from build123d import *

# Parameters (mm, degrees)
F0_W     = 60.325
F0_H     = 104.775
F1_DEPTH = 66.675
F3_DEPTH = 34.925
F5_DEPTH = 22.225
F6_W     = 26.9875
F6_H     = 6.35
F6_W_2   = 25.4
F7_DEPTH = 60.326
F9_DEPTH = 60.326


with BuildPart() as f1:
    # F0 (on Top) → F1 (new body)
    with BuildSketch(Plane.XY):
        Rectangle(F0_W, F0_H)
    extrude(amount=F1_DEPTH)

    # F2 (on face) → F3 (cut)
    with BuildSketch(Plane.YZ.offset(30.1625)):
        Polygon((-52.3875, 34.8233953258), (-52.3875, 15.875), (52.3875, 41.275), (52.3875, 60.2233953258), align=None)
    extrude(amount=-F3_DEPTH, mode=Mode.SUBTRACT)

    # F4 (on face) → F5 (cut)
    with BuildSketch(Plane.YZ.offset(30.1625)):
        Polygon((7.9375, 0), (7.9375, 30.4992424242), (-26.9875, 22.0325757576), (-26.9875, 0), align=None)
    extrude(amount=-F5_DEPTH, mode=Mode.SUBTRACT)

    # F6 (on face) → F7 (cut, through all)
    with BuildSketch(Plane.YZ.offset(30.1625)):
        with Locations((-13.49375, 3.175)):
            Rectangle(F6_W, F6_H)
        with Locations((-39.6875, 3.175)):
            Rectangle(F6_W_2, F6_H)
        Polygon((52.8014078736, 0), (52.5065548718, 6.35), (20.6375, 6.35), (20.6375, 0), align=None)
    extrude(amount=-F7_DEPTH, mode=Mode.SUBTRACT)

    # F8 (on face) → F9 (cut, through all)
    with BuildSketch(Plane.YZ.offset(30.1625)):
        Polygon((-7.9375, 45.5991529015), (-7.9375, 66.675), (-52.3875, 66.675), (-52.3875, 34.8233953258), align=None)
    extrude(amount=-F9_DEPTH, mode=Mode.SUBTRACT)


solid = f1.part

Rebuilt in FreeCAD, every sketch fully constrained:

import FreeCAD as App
import Part
import Sketcher
Q = App.Units.Quantity


def add_polygon(sketch, points):
    """Adds a closed chain of lines whose ends are joined by coincident constraints."""
    first, n = sketch.GeometryCount, len(points)
    for a, b in zip(points, points[1:] + points[:1]):
        sketch.addGeometry(Part.LineSegment(App.Vector(*a, 0), App.Vector(*b, 0)), False)
    for i in range(n):
        sketch.addConstraint(Sketcher.Constraint("Coincident", first + i, 2, first + (i + 1) % n, 1))

doc = App.newDocument("Part")
params = doc.addObject("Spreadsheet::Sheet", "Params")
for row, (alias, value) in enumerate([
    ("sketch1_width", "2.375 in"),
    ("sketch1_height", "4.125 in"),
    ("pad1_length", "2.625 in"),
    ("sketch2_height", "0.7459998 in"),
    ("pocket1_length", "1.375 in"),
    ("sketch3_width", "1.375 in"),
    ("pocket2_length", "0.875 in"),
    ("sketch4_height", "0.25 in"),
    ("sketch4_width", "2.0625 in"),
    ("sketch5_width", "1.75 in"),
    ("sketch5_height", "1.2540002 in"),
], start=1):
    params.set(f"A{row}", alias)
    params.set(f"B{row}", "=" + value)
    params.setAlias(f"B{row}", alias)

body = doc.addObject("PartDesign::Body", "Body")

# Sketch on XY plane
sketch1 = body.newObject("Sketcher::SketchObject", "Sketch")
sketch1.AttachmentSupport = (doc.getObject("XY_Plane"), [""])
sketch1.MapMode = "FlatFace"
add_polygon(sketch1, [(-30, 52), (-30, -52), (30, -52), (30, 52)])  # lines 0-3
sketch1.addConstraint([
    Sketcher.Constraint("Vertical", 0),
    Sketcher.Constraint("Horizontal", 1),
    Sketcher.Constraint("Vertical", 2),
    Sketcher.Constraint("Horizontal", 3),
    Sketcher.Constraint("Symmetric", 0, 2, 2, 2, -1, 1),
    Sketcher.Constraint("DistanceX", 1, 1, 1, 2, Q("2.375 in")),
    Sketcher.Constraint("DistanceY", 0, 2, 0, 1, Q("4.125 in")),
])
sketch1.setExpression("Constraints[9]", "Params.sketch1_width")
sketch1.setExpression("Constraints[10]", "Params.sketch1_height")
pad1 = body.newObject("PartDesign::Pad", "Pad")
pad1.Profile = sketch1
pad1.setExpression("Length", "Params.pad1_length")

# Sketch on YZ plane
sketch2 = body.newObject("Sketcher::SketchObject", "Sketch001")
sketch2.AttachmentSupport = (doc.getObject("YZ_Plane"), [""])
sketch2.MapMode = "FlatFace"
sketch2.AttachmentOffset = App.Placement(App.Vector(0, 0, 1.1875 * 25.4), App.Rotation())
add_polygon(sketch2, [(-52, 35), (-52, 16), (52, 41), (52, 60)])  # lines 0-3
sketch2.addConstraint([
    Sketcher.Constraint("Vertical", 0),
    Sketcher.Constraint("Vertical", 2),
    Sketcher.Constraint("Parallel", 1, 3),
    Sketcher.Constraint("DistanceY", 0, 2, 1, 2, Q("1 in")),
    Sketcher.Constraint("DistanceY", 0, 2, 0, 1, Q("0.7459998 in")),
    Sketcher.Constraint("DistanceX", 0, 2, -1, 1, Q("2.0625 in")),
    Sketcher.Constraint("DistanceY", -1, 1, 0, 2, Q("0.625 in")),
    Sketcher.Constraint("DistanceX", -1, 1, 1, 2, Q("2.0625 in")),
])
sketch2.setExpression("Constraints[8]", "Params.sketch2_height")
pocket1 = body.newObject("PartDesign::Pocket", "Pocket")
pocket1.Profile = sketch2
pocket1.setExpression("Length", "Params.pocket1_length")

# Sketch on YZ plane
sketch3 = body.newObject("Sketcher::SketchObject", "Sketch002")
sketch3.AttachmentSupport = (doc.getObject("YZ_Plane"), [""])
sketch3.MapMode = "FlatFace"
sketch3.AttachmentOffset = App.Placement(App.Vector(0, 0, 1.1875 * 25.4), App.Rotation())
add_polygon(sketch3, [(8, 0), (8, 30), (-27, 22), (-27, 0)])  # lines 0-3
sketch3.addConstraint([
    Sketcher.Constraint("Vertical", 0),
    Sketcher.Constraint("Vertical", 2),
    Sketcher.Constraint("Horizontal", 3),
    Sketcher.Constraint("PointOnObject", 2, 2, -1),
    Sketcher.Constraint("DistanceX", 3, 1, 3, 2, Q("1.375 in")),
    Sketcher.Constraint("DistanceX", -1, 1, 0, 2, Q("0.3125 in")),
    Sketcher.Constraint("Distance", 1, 35.936612),
    Sketcher.Constraint("DistanceY", 0, 1, 0, 2, 30.499242),
])
sketch3.setExpression("Constraints[8]", "Params.sketch3_width")
pocket2 = body.newObject("PartDesign::Pocket", "Pocket001")
pocket2.Profile = sketch3
pocket2.setExpression("Length", "Params.pocket2_length")

# Sketch on YZ plane
sketch4 = body.newObject("Sketcher::SketchObject", "Sketch003")
sketch4.AttachmentSupport = (doc.getObject("YZ_Plane"), [""])
sketch4.MapMode = "FlatFace"
sketch4.AttachmentOffset = App.Placement(App.Vector(0, 0, 1.1875 * 25.4), App.Rotation())
add_polygon(sketch4, [(0, 0), (0, 6.35), (-52.3875, 6.35), (-52.3875, 0)])  # lines 0-3
add_polygon(sketch4, [(52.801408, 0), (52.506555, 6.35), (20.6375, 6.35), (20.6375, 0)])  # lines 4-7
sketch4.addConstraint([
    Sketcher.Constraint("Vertical", 0),
    Sketcher.Constraint("Horizontal", 1),
    Sketcher.Constraint("Vertical", 2),
    Sketcher.Constraint("Horizontal", 3),
    Sketcher.Constraint("Horizontal", 5),
    Sketcher.Constraint("Vertical", 6),
    Sketcher.Constraint("Horizontal", 7),
    Sketcher.Constraint("Coincident", 3, 2, -1, 1),
    Sketcher.Constraint("PointOnObject", 6, 2, -1),
    Sketcher.Constraint("Horizontal", 1, 2, 4, 2),
    Sketcher.Constraint("DistanceY", 0, 1, 0, 2, Q("0.25 in")),
    Sketcher.Constraint("DistanceX", 1, 2, 1, 1, Q("2.0625 in")),
    Sketcher.Constraint("DistanceX", -1, 1, 5, 2, Q("0.8125 in")),
    Sketcher.Constraint("Distance", 4, 6.356842),
    Sketcher.Constraint("DistanceX", 5, 2, 5, 1, 31.869055),
])
sketch4.setExpression("Constraints[18]", "Params.sketch4_height")
sketch4.setExpression("Constraints[19]", "Params.sketch4_width")
pocket3 = body.newObject("PartDesign::Pocket", "Pocket002")
pocket3.Profile = sketch4
pocket3.Type = "ThroughAll"

# Sketch on YZ plane
sketch5 = body.newObject("Sketcher::SketchObject", "Sketch004")
sketch5.AttachmentSupport = (doc.getObject("YZ_Plane"), [""])
sketch5.MapMode = "FlatFace"
sketch5.AttachmentOffset = App.Placement(App.Vector(0, 0, 1.1875 * 25.4), App.Rotation())
add_polygon(sketch5, [(-8, 46), (-8, 67), (-52, 67), (-52, 35)])  # lines 0-3
sketch5.addConstraint([
    Sketcher.Constraint("Vertical", 0),
    Sketcher.Constraint("Horizontal", 1),
    Sketcher.Constraint("Vertical", 2),
    Sketcher.Constraint("DistanceX", 1, 2, 1, 1, Q("1.75 in")),
    Sketcher.Constraint("DistanceY", 2, 2, 2, 1, Q("1.2540002 in")),
    Sketcher.Constraint("DistanceX", 0, 2, -1, 1, Q("0.3125 in")),
    Sketcher.Constraint("DistanceY", -1, 1, 0, 2, Q("2.625 in")),
    Sketcher.Constraint("DistanceY", 0, 1, 0, 2, 21.075847),
])
sketch5.setExpression("Constraints[7]", "Params.sketch5_width")
sketch5.setExpression("Constraints[8]", "Params.sketch5_height")
pocket4 = body.newObject("PartDesign::Pocket", "Pocket003")
pocket4.Profile = sketch5
pocket4.Type = "ThroughAll"

doc.recompute()
